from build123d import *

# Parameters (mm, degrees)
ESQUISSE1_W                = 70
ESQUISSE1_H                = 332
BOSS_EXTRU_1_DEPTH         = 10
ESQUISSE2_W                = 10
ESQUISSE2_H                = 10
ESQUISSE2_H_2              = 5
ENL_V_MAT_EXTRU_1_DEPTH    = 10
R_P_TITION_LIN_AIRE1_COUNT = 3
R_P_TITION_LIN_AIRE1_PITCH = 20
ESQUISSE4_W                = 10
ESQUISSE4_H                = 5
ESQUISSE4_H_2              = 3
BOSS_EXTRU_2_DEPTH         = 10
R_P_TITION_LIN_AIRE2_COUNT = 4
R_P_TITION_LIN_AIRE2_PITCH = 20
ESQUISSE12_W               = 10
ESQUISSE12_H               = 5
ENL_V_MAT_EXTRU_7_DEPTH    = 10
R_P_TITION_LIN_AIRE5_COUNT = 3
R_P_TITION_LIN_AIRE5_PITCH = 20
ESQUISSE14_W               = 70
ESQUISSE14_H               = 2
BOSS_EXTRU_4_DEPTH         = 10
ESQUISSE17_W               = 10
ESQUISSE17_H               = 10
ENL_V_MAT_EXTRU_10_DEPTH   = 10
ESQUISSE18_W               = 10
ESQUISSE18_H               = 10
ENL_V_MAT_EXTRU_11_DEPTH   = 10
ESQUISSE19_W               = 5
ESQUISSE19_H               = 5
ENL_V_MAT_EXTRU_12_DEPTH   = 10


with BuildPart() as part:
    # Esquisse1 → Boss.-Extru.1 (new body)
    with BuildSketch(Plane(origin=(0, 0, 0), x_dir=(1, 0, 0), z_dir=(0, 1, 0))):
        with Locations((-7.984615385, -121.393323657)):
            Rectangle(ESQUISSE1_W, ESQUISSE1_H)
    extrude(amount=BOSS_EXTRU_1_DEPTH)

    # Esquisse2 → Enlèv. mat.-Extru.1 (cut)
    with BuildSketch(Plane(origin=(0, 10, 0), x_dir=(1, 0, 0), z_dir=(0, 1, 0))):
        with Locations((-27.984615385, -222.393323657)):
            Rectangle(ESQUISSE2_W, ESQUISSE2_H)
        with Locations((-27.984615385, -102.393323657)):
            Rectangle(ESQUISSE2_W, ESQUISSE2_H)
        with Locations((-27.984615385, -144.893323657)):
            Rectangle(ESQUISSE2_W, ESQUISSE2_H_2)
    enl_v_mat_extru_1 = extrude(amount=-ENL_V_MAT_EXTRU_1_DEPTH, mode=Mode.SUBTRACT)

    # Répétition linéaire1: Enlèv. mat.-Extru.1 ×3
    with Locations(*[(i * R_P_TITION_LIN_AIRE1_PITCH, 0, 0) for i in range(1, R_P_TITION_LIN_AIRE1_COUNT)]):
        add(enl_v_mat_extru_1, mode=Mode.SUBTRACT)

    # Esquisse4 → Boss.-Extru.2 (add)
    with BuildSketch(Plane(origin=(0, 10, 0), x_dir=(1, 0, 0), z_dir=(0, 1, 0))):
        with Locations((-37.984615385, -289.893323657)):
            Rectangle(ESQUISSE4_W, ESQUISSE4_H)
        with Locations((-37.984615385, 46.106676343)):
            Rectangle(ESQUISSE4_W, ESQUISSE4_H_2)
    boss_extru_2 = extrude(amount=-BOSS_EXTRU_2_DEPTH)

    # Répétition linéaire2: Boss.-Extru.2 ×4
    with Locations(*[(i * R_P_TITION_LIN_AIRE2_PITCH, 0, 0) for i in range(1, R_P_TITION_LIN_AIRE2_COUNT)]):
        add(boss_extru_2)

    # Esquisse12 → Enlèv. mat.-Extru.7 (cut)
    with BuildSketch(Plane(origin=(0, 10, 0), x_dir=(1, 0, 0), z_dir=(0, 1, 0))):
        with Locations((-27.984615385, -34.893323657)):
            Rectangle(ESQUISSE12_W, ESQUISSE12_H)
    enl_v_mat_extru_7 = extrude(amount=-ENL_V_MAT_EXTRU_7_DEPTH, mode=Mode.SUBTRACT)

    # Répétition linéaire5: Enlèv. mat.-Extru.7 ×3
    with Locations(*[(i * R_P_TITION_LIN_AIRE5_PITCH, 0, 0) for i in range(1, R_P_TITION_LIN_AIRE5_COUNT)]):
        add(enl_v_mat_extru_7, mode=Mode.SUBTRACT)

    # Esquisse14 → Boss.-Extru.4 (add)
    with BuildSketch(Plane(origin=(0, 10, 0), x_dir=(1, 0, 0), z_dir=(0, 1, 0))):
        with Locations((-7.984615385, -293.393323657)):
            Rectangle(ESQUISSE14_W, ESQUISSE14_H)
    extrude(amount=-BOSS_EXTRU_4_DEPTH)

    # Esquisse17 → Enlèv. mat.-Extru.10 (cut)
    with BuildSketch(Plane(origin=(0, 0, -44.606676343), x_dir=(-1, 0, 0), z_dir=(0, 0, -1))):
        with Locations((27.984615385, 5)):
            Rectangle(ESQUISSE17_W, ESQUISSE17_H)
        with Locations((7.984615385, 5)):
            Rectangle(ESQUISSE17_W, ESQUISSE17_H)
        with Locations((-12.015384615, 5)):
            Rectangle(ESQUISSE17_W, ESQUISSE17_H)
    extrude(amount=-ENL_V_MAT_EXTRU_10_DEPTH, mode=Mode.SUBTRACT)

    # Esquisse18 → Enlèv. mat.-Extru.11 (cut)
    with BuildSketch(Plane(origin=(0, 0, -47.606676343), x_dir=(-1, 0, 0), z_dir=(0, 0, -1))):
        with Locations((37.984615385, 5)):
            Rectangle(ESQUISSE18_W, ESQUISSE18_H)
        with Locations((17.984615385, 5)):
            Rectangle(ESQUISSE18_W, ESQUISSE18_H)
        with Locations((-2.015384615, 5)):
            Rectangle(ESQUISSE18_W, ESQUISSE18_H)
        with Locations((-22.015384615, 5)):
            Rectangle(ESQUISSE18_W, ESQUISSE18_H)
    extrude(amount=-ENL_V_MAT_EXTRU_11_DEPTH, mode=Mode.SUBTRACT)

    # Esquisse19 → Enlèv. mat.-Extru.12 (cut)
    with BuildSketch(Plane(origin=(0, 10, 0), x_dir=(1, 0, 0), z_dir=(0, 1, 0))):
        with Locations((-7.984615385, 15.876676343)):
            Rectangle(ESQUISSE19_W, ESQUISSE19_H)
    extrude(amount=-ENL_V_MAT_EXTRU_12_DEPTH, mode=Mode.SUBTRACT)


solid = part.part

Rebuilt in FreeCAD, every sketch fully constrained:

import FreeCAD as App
import Part
import Sketcher
Q = App.Units.Quantity


def add_polygon(sketch, points):
    """Adds a closed chain of lines whose ends are joined by coincident constraints."""
    first, n = sketch.GeometryCount, len(points)
    for a, b in zip(points, points[1:] + points[:1]):
        sketch.addGeometry(Part.LineSegment(App.Vector(*a, 0), App.Vector(*b, 0)), False)
    for i in range(n):
        sketch.addConstraint(Sketcher.Constraint("Coincident", first + i, 2, first + (i + 1) % n, 1))

doc = App.newDocument("Part")
body = doc.addObject("PartDesign::Body", "Body")

# Sketch on XZ plane
sketch1 = body.newObject("Sketcher::SketchObject", "Sketch")
sketch1.AttachmentSupport = (doc.getObject("XZ_Plane"), [""])
sketch1.MapMode = "FlatFace"
add_polygon(sketch1, [(-42.984615, -44.606676), (-42.984615, 287.393324), (27.015385, 287.393324), (27.015385, -44.606676)])  # lines 0-3
sketch1.addConstraint(Sketcher.Constraint("Vertical", 0))
sketch1.addConstraint(Sketcher.Constraint("Horizontal", 1))
sketch1.addConstraint(Sketcher.Constraint("Vertical", 2))
sketch1.addConstraint(Sketcher.Constraint("Horizontal", 3))
sketch1.addConstraint(Sketcher.Constraint("DistanceX", 1, 1, 1, 2, Q("70 mm")))
sketch1.addConstraint(Sketcher.Constraint("DistanceY", 0, 1, 0, 2, Q("332 mm")))
sketch1.addConstraint(Sketcher.Constraint("DistanceX", 0, 2, -1, 1, Q("42.984615 mm")))
sketch1.addConstraint(Sketcher.Constraint("DistanceY", -1, 1, 0, 2, Q("287.393324 mm")))
pad1 = body.newObject("PartDesign::Pad", "Pad")
pad1.Profile = sketch1
pad1.Length = 10
pad1.Reversed = True

# Sketch on XZ plane
sketch2 = body.newObject("Sketcher::SketchObject", "Sketch001")
sketch2.AttachmentSupport = (doc.getObject("XZ_Plane"), [""])
sketch2.MapMode = "FlatFace"
sketch2.AttachmentOffset = App.Placement(App.Vector(0, 0, -10), App.Rotation())
add_polygon(sketch2, [(-32.984615, 217.393324), (-32.984615, 227.393324), (-22.984615, 227.393324), (-22.984615, 217.393324)])  # lines 0-3
add_polygon(sketch2, [(-32.984615, 97.393324), (-32.984615, 107.393324), (-22.984615, 107.393324), (-22.984615, 97.393324)])  # lines 4-7
add_polygon(sketch2, [(-32.984615, 142.393324), (-32.984615, 147.393324), (-22.984615, 147.393324), (-22.984615, 142.393324)])  # lines 8-11
sketch2.addConstraint(Sketcher.Constraint("Vertical", 0))
sketch2.addConstraint(Sketcher.Constraint("Horizontal", 1))
sketch2.addConstraint(Sketcher.Constraint("Vertical", 2))
sketch2.addConstraint(Sketcher.Constraint("Horizontal", 3))
sketch2.addConstraint(Sketcher.Constraint("Vertical", 4))
sketch2.addConstraint(Sketcher.Constraint("Horizontal", 5))
sketch2.addConstraint(Sketcher.Constraint("Vertical", 6))
sketch2.addConstraint(Sketcher.Constraint("Horizontal", 7))
sketch2.addConstraint(Sketcher.Constraint("Vertical", 8))
sketch2.addConstraint(Sketcher.Constraint("Horizontal", 9))
sketch2.addConstraint(Sketcher.Constraint("Vertical", 10))
sketch2.addConstraint(Sketcher.Constraint("Horizontal", 11))
sketch2.addConstraint(Sketcher.Constraint("Vertical", 3, 2, 4, 2))
sketch2.addConstraint(Sketcher.Constraint("Vertical", 2, 2, 5, 2))
sketch2.addConstraint(Sketcher.Constraint("Vertical", 7, 2, 8, 2))
sketch2.addConstraint(Sketcher.Constraint("Vertical", 6, 2, 9, 2))
sketch2.addConstraint(Sketcher.Constraint("Equal", 11, 0))
sketch2.addConstraint(Sketcher.Constraint("Equal", 2, 4))
sketch2.addConstraint(Sketcher.Constraint("DistanceX", 1, 1, 1, 2, Q("10 mm")))
sketch2.addConstraint(Sketcher.Constraint("DistanceY", 8, 1, 8, 2, Q("5 mm")))
sketch2.addConstraint(Sketcher.Constraint("DistanceY", 4, 2, 3, 2, Q("110 mm")))
sketch2.addConstraint(Sketcher.Constraint("DistanceY", 4, 2, 8, 2, Q("40 mm")))
sketch2.addConstraint(Sketcher.Constraint("DistanceX", 0, 2, -1, 1, Q("32.984615 mm")))
sketch2.addConstraint(Sketcher.Constraint("DistanceY", -1, 1, 0, 2, Q("227.393324 mm")))
pocket1 = body.newObject("PartDesign::Pocket", "Pocket")
pocket1.Profile = sketch2
pocket1.Length = 10
pocket1.Reversed = True
doc.recompute()

linearpattern = body.newObject("PartDesign::LinearPattern", "LinearPattern")
linearpattern.Originals = [pocket1]
linearpattern.Direction = (doc.getObject("X_Axis"), [""])
linearpattern.Mode = "offset"
linearpattern.Offset = 20
linearpattern.Occurrences = 3
body.Tip = linearpattern

# Sketch on XZ plane
sketch3 = body.newObject("Sketcher::SketchObject", "Sketch002")
sketch3.AttachmentSupport = (doc.getObject("XZ_Plane"), [""])
sketch3.MapMode = "FlatFace"
sketch3.AttachmentOffset = App.Placement(App.Vector(0, 0, -10), App.Rotation())
add_polygon(sketch3, [(-42.984615, 287.393324), (-42.984615, 292.393324), (-32.984615, 292.393324), (-32.984615, 287.393324)])  # lines 0-3
add_polygon(sketch3, [(-42.984615, -47.606676), (-42.984615, -44.606676), (-32.984615, -44.606676), (-32.984615, -47.606676)])  # lines 4-7
sketch3.addConstraint(Sketcher.Constraint("Vertical", 0))
sketch3.addConstraint(Sketcher.Constraint("Horizontal", 1))
sketch3.addConstraint(Sketcher.Constraint("Vertical", 2))
sketch3.addConstraint(Sketcher.Constraint("Horizontal", 3))
sketch3.addConstraint(Sketcher.Constraint("Vertical", 4))
sketch3.addConstraint(Sketcher.Constraint("Horizontal", 5))
sketch3.addConstraint(Sketcher.Constraint("Vertical", 6))
sketch3.addConstraint(Sketcher.Constraint("Horizontal", 7))
sketch3.addConstraint(Sketcher.Constraint("Vertical", 3, 2, 4, 2))
sketch3.addConstraint(Sketcher.Constraint("Vertical", 2, 2, 5, 2))
sketch3.addConstraint(Sketcher.Constraint("DistanceX", 1, 1, 1, 2, Q("10 mm")))
sketch3.addConstraint(Sketcher.Constraint("DistanceY", 0, 1, 0, 2, Q("5 mm")))
sketch3.addConstraint(Sketcher.Constraint("DistanceY", 4, 1, 4, 2, Q("3 mm")))
sketch3.addConstraint(Sketcher.Constraint("DistanceY", 4, 2, 3, 2, Q("332 mm")))
sketch3.addConstraint(Sketcher.Constraint("DistanceX", 0, 2, -1, 1, Q("42.984615 mm")))
sketch3.addConstraint(Sketcher.Constraint("DistanceY", -1, 1, 0, 2, Q("292.393324 mm")))
pad2 = body.newObject("PartDesign::Pad", "Pad001")
pad2.Profile = sketch3
pad2.Length = 10
doc.recompute()

linearpattern2 = body.newObject("PartDesign::LinearPattern", "LinearPattern001")
linearpattern2.Originals = [pad2]
linearpattern2.Direction = (doc.getObject("X_Axis"), [""])
linearpattern2.Mode = "offset"
linearpattern2.Offset = 20
linearpattern2.Occurrences = 4
body.Tip = linearpattern2

# Sketch on XZ plane
sketch4 = body.newObject("Sketcher::SketchObject", "Sketch003")
sketch4.AttachmentSupport = (doc.getObject("XZ_Plane"), [""])
sketch4.MapMode = "FlatFace"
sketch4.AttachmentOffset = App.Placement(App.Vector(0, 0, -10), App.Rotation())
add_polygon(sketch4, [(-32.984615, 32.393324), (-32.984615, 37.393324), (-22.984615, 37.393324), (-22.984615, 32.393324)])  # lines 0-3
sketch4.addConstraint(Sketcher.Constraint("Vertical", 0))
sketch4.addConstraint(Sketcher.Constraint("Horizontal", 1))
sketch4.addConstraint(Sketcher.Constraint("Vertical", 2))
sketch4.addConstraint(Sketcher.Constraint("Horizontal", 3))
sketch4.addConstraint(Sketcher.Constraint("DistanceX", 1, 1, 1, 2, Q("10 mm")))
sketch4.addConstraint(Sketcher.Constraint("DistanceY", 0, 1, 0, 2, Q("5 mm")))
sketch4.addConstraint(Sketcher.Constraint("DistanceX", 0, 2, -1, 1, Q("32.984615 mm")))
sketch4.addConstraint(Sketcher.Constraint("DistanceY", -1, 1, 0, 2, Q("37.393324 mm")))
pocket2 = body.newObject("PartDesign::Pocket", "Pocket001")
pocket2.Profile = sketch4
pocket2.Length = 10
pocket2.Reversed = True
doc.recompute()

linearpattern3 = body.newObject("PartDesign::LinearPattern", "LinearPattern002")
linearpattern3.Originals = [pocket2]
linearpattern3.Direction = (doc.getObject("X_Axis"), [""])
linearpattern3.Mode = "offset"
linearpattern3.Offset = 20
linearpattern3.Occurrences = 3
body.Tip = linearpattern3

# Sketch on XZ plane
sketch5 = body.newObject("Sketcher::SketchObject", "Sketch004")
sketch5.AttachmentSupport = (doc.getObject("XZ_Plane"), [""])
sketch5.MapMode = "FlatFace"
sketch5.AttachmentOffset = App.Placement(App.Vector(0, 0, -10), App.Rotation())
add_polygon(sketch5, [(-42.984615, 292.393324), (-42.984615, 294.393324), (27.015385, 294.393324), (27.015385, 292.393324)])  # lines 0-3
sketch5.addConstraint(Sketcher.Constraint("Vertical", 0))
sketch5.addConstraint(Sketcher.Constraint("Horizontal", 1))
sketch5.addConstraint(Sketcher.Constraint("Vertical", 2))
sketch5.addConstraint(Sketcher.Constraint("Horizontal", 3))
sketch5.addConstraint(Sketcher.Constraint("DistanceX", 1, 1, 1, 2, Q("70 mm")))
sketch5.addConstraint(Sketcher.Constraint("DistanceY", 0, 1, 0, 2, Q("2 mm")))
sketch5.addConstraint(Sketcher.Constraint("DistanceX", 0, 2, -1, 1, Q("42.984615 mm")))
sketch5.addConstraint(Sketcher.Constraint("DistanceY", -1, 1, 0, 2, Q("294.393324 mm")))
pad3 = body.newObject("PartDesign::Pad", "Pad002")
pad3.Profile = sketch5
pad3.Length = 10

# Sketch on XY plane
sketch6 = body.newObject("Sketcher::SketchObject", "Sketch005")
sketch6.AttachmentSupport = (doc.getObject("XY_Plane"), [""])
sketch6.MapMode = "FlatFace"
sketch6.AttachmentOffset = App.Placement(App.Vector(0, 0, -44.606676), App.Rotation())
add_polygon(sketch6, [(-22.984615, 10), (-22.984615, 0), (-32.984615, 0), (-32.984615, 10)])  # lines 0-3
add_polygon(sketch6, [(-2.984615, 10), (-2.984615, 0), (-12.984615, 0), (-12.984615, 10)])  # lines 4-7
add_polygon(sketch6, [(17.015385, 10), (17.015385, 0), (7.015385, 0), (7.015385, 10)])  # lines 8-11
sketch6.addConstraint(Sketcher.Constraint("Vertical", 0))
sketch6.addConstraint(Sketcher.Constraint("Horizontal", 1))
sketch6.addConstraint(Sketcher.Constraint("Vertical", 2))
sketch6.addConstraint(Sketcher.Constraint("Horizontal", 3))
sketch6.addConstraint(Sketcher.Constraint("Vertical", 4))
sketch6.addConstraint(Sketcher.Constraint("Horizontal", 5))
sketch6.addConstraint(Sketcher.Constraint("Vertical", 6))
sketch6.addConstraint(Sketcher.Constraint("Horizontal", 7))
sketch6.addConstraint(Sketcher.Constraint("Vertical", 8))
sketch6.addConstraint(Sketcher.Constraint("Horizontal", 9))
sketch6.addConstraint(Sketcher.Constraint("Vertical", 10))
sketch6.addConstraint(Sketcher.Constraint("Horizontal", 11))
sketch6.addConstraint(Sketcher.Constraint("PointOnObject", 0, 2, -1))
sketch6.addConstraint(Sketcher.Constraint("PointOnObject", 4, 2, -1))
sketch6.addConstraint(Sketcher.Constraint("PointOnObject", 8, 2, -1))
sketch6.addConstraint(Sketcher.Constraint("Horizontal", 3, 2, 6, 2))
sketch6.addConstraint(Sketcher.Constraint("Horizontal", 7, 2, 10, 2))
sketch6.addConstraint(Sketcher.Constraint("Equal", 3, 5))
sketch6.addConstraint(Sketcher.Constraint("Equal", 7, 9))
sketch6.addConstraint(Sketcher.Constraint("Equal", 11, 0))
sketch6.addConstraint(Sketcher.Constraint("DistanceX", 1, 2, 1, 1, Q("10 mm")))
sketch6.addConstraint(Sketcher.Constraint("DistanceX", 0, 2, 4, 2, Q("20 mm")))
sketch6.addConstraint(Sketcher.Constraint("DistanceX", 4, 2, 8, 2, Q("20 mm")))
sketch6.addConstraint(Sketcher.Constraint("DistanceX", 0, 2, -1, 1, Q("22.984615 mm")))
pocket3 = body.newObject("PartDesign::Pocket", "Pocket002")
pocket3.Profile = sketch6
pocket3.Length = 10
pocket3.Reversed = True

# Sketch on XY plane
sketch7 = body.newObject("Sketcher::SketchObject", "Sketch006")
sketch7.AttachmentSupport = (doc.getObject("XY_Plane"), [""])
sketch7.MapMode = "FlatFace"
sketch7.AttachmentOffset = App.Placement(App.Vector(0, 0, -47.606676), App.Rotation())
add_polygon(sketch7, [(-32.984615, 10), (-32.984615, 0), (-42.984615, 0), (-42.984615, 10)])  # lines 0-3
add_polygon(sketch7, [(-12.984615, 10), (-12.984615, 0), (-22.984615, 0), (-22.984615, 10)])  # lines 4-7
add_polygon(sketch7, [(7.015385, 10), (7.015385, 0), (-2.984615, 0), (-2.984615, 10)])  # lines 8-11
add_polygon(sketch7, [(27.015385, 10), (27.015385, 0), (17.015385, 0), (17.015385, 10)])  # lines 12-15
sketch7.addConstraint(Sketcher.Constraint("Vertical", 0))
sketch7.addConstraint(Sketcher.Constraint("Horizontal", 1))
sketch7.addConstraint(Sketcher.Constraint("Vertical", 2))
sketch7.addConstraint(Sketcher.Constraint("Horizontal", 3))
sketch7.addConstraint(Sketcher.Constraint("Vertical", 4))
sketch7.addConstraint(Sketcher.Constraint("Horizontal", 5))
sketch7.addConstraint(Sketcher.Constraint("Vertical", 6))
sketch7.addConstraint(Sketcher.Constraint("Horizontal", 7))
sketch7.addConstraint(Sketcher.Constraint("Vertical", 8))
sketch7.addConstraint(Sketcher.Constraint("Horizontal", 9))
sketch7.addConstraint(Sketcher.Constraint("Vertical", 10))
sketch7.addConstraint(Sketcher.Constraint("Horizontal", 11))
sketch7.addConstraint(Sketcher.Constraint("Vertical", 12))
sketch7.addConstraint(Sketcher.Constraint("Horizontal", 13))
sketch7.addConstraint(Sketcher.Constraint("Vertical", 14))
sketch7.addConstraint(Sketcher.Constraint("Horizontal", 15))
sketch7.addConstraint(Sketcher.Constraint("PointOnObject", 0, 2, -1))
sketch7.addConstraint(Sketcher.Constraint("PointOnObject", 4, 2, -1))
sketch7.addConstraint(Sketcher.Constraint("PointOnObject", 8, 2, -1))
sketch7.addConstraint(Sketcher.Constraint("PointOnObject", 12, 2, -1))
sketch7.addConstraint(Sketcher.Constraint("Horizontal", 3, 2, 6, 2))
sketch7.addConstraint(Sketcher.Constraint("Horizontal", 7, 2, 10, 2))
sketch7.addConstraint(Sketcher.Constraint("Horizontal", 11, 2, 14, 2))
sketch7.addConstraint(Sketcher.Constraint("Equal", 3, 5))
sketch7.addConstraint(Sketcher.Constraint("Equal", 7, 9))
sketch7.addConstraint(Sketcher.Constraint("Equal", 11, 13))
sketch7.addConstraint(Sketcher.Constraint("Equal", 15, 0))
sketch7.addConstraint(Sketcher.Constraint("DistanceX", 1, 2, 1, 1, Q("10 mm")))
sketch7.addConstraint(Sketcher.Constraint("DistanceX", 0, 2, 4, 2, Q("20 mm")))
sketch7.addConstraint(Sketcher.Constraint("DistanceX", 4, 2, 8, 2, Q("20 mm")))
sketch7.addConstraint(Sketcher.Constraint("DistanceX", 8, 2, 12, 2, Q("20 mm")))
sketch7.addConstraint(Sketcher.Constraint("DistanceX", 0, 2, -1, 1, Q("32.984615 mm")))
pocket4 = body.newObject("PartDesign::Pocket", "Pocket003")
pocket4.Profile = sketch7
pocket4.Length = 10
pocket4.Reversed = True

# Sketch on XZ plane
sketch8 = body.newObject("Sketcher::SketchObject", "Sketch007")
sketch8.AttachmentSupport = (doc.getObject("XZ_Plane"), [""])
sketch8.MapMode = "FlatFace"
sketch8.AttachmentOffset = App.Placement(App.Vector(0, 0, -10), App.Rotation())
add_polygon(sketch8, [(-10.484615, -18.376676), (-10.484615, -13.376676), (-5.484615, -13.376676), (-5.484615, -18.376676)])  # lines 0-3
sketch8.addConstraint(Sketcher.Constraint("Vertical", 0))
sketch8.addConstraint(Sketcher.Constraint("Horizontal", 1))
sketch8.addConstraint(Sketcher.Constraint("Vertical", 2))
sketch8.addConstraint(Sketcher.Constraint("Horizontal", 3))
sketch8.addConstraint(Sketcher.Constraint("Equal", 3, 0))
sketch8.addConstraint(Sketcher.Constraint("DistanceX", 1, 1, 1, 2, Q("5 mm")))
sketch8.addConstraint(Sketcher.Constraint("DistanceX", 0, 2, -1, 1, Q("10.484615 mm")))
sketch8.addConstraint(Sketcher.Constraint("DistanceY", 0, 2, -1, 1, Q("13.376676 mm")))
pocket5 = body.newObject("PartDesign::Pocket", "Pocket004")
pocket5.Profile = sketch8
pocket5.Length = 10
pocket5.Reversed = True

doc.recompute()
